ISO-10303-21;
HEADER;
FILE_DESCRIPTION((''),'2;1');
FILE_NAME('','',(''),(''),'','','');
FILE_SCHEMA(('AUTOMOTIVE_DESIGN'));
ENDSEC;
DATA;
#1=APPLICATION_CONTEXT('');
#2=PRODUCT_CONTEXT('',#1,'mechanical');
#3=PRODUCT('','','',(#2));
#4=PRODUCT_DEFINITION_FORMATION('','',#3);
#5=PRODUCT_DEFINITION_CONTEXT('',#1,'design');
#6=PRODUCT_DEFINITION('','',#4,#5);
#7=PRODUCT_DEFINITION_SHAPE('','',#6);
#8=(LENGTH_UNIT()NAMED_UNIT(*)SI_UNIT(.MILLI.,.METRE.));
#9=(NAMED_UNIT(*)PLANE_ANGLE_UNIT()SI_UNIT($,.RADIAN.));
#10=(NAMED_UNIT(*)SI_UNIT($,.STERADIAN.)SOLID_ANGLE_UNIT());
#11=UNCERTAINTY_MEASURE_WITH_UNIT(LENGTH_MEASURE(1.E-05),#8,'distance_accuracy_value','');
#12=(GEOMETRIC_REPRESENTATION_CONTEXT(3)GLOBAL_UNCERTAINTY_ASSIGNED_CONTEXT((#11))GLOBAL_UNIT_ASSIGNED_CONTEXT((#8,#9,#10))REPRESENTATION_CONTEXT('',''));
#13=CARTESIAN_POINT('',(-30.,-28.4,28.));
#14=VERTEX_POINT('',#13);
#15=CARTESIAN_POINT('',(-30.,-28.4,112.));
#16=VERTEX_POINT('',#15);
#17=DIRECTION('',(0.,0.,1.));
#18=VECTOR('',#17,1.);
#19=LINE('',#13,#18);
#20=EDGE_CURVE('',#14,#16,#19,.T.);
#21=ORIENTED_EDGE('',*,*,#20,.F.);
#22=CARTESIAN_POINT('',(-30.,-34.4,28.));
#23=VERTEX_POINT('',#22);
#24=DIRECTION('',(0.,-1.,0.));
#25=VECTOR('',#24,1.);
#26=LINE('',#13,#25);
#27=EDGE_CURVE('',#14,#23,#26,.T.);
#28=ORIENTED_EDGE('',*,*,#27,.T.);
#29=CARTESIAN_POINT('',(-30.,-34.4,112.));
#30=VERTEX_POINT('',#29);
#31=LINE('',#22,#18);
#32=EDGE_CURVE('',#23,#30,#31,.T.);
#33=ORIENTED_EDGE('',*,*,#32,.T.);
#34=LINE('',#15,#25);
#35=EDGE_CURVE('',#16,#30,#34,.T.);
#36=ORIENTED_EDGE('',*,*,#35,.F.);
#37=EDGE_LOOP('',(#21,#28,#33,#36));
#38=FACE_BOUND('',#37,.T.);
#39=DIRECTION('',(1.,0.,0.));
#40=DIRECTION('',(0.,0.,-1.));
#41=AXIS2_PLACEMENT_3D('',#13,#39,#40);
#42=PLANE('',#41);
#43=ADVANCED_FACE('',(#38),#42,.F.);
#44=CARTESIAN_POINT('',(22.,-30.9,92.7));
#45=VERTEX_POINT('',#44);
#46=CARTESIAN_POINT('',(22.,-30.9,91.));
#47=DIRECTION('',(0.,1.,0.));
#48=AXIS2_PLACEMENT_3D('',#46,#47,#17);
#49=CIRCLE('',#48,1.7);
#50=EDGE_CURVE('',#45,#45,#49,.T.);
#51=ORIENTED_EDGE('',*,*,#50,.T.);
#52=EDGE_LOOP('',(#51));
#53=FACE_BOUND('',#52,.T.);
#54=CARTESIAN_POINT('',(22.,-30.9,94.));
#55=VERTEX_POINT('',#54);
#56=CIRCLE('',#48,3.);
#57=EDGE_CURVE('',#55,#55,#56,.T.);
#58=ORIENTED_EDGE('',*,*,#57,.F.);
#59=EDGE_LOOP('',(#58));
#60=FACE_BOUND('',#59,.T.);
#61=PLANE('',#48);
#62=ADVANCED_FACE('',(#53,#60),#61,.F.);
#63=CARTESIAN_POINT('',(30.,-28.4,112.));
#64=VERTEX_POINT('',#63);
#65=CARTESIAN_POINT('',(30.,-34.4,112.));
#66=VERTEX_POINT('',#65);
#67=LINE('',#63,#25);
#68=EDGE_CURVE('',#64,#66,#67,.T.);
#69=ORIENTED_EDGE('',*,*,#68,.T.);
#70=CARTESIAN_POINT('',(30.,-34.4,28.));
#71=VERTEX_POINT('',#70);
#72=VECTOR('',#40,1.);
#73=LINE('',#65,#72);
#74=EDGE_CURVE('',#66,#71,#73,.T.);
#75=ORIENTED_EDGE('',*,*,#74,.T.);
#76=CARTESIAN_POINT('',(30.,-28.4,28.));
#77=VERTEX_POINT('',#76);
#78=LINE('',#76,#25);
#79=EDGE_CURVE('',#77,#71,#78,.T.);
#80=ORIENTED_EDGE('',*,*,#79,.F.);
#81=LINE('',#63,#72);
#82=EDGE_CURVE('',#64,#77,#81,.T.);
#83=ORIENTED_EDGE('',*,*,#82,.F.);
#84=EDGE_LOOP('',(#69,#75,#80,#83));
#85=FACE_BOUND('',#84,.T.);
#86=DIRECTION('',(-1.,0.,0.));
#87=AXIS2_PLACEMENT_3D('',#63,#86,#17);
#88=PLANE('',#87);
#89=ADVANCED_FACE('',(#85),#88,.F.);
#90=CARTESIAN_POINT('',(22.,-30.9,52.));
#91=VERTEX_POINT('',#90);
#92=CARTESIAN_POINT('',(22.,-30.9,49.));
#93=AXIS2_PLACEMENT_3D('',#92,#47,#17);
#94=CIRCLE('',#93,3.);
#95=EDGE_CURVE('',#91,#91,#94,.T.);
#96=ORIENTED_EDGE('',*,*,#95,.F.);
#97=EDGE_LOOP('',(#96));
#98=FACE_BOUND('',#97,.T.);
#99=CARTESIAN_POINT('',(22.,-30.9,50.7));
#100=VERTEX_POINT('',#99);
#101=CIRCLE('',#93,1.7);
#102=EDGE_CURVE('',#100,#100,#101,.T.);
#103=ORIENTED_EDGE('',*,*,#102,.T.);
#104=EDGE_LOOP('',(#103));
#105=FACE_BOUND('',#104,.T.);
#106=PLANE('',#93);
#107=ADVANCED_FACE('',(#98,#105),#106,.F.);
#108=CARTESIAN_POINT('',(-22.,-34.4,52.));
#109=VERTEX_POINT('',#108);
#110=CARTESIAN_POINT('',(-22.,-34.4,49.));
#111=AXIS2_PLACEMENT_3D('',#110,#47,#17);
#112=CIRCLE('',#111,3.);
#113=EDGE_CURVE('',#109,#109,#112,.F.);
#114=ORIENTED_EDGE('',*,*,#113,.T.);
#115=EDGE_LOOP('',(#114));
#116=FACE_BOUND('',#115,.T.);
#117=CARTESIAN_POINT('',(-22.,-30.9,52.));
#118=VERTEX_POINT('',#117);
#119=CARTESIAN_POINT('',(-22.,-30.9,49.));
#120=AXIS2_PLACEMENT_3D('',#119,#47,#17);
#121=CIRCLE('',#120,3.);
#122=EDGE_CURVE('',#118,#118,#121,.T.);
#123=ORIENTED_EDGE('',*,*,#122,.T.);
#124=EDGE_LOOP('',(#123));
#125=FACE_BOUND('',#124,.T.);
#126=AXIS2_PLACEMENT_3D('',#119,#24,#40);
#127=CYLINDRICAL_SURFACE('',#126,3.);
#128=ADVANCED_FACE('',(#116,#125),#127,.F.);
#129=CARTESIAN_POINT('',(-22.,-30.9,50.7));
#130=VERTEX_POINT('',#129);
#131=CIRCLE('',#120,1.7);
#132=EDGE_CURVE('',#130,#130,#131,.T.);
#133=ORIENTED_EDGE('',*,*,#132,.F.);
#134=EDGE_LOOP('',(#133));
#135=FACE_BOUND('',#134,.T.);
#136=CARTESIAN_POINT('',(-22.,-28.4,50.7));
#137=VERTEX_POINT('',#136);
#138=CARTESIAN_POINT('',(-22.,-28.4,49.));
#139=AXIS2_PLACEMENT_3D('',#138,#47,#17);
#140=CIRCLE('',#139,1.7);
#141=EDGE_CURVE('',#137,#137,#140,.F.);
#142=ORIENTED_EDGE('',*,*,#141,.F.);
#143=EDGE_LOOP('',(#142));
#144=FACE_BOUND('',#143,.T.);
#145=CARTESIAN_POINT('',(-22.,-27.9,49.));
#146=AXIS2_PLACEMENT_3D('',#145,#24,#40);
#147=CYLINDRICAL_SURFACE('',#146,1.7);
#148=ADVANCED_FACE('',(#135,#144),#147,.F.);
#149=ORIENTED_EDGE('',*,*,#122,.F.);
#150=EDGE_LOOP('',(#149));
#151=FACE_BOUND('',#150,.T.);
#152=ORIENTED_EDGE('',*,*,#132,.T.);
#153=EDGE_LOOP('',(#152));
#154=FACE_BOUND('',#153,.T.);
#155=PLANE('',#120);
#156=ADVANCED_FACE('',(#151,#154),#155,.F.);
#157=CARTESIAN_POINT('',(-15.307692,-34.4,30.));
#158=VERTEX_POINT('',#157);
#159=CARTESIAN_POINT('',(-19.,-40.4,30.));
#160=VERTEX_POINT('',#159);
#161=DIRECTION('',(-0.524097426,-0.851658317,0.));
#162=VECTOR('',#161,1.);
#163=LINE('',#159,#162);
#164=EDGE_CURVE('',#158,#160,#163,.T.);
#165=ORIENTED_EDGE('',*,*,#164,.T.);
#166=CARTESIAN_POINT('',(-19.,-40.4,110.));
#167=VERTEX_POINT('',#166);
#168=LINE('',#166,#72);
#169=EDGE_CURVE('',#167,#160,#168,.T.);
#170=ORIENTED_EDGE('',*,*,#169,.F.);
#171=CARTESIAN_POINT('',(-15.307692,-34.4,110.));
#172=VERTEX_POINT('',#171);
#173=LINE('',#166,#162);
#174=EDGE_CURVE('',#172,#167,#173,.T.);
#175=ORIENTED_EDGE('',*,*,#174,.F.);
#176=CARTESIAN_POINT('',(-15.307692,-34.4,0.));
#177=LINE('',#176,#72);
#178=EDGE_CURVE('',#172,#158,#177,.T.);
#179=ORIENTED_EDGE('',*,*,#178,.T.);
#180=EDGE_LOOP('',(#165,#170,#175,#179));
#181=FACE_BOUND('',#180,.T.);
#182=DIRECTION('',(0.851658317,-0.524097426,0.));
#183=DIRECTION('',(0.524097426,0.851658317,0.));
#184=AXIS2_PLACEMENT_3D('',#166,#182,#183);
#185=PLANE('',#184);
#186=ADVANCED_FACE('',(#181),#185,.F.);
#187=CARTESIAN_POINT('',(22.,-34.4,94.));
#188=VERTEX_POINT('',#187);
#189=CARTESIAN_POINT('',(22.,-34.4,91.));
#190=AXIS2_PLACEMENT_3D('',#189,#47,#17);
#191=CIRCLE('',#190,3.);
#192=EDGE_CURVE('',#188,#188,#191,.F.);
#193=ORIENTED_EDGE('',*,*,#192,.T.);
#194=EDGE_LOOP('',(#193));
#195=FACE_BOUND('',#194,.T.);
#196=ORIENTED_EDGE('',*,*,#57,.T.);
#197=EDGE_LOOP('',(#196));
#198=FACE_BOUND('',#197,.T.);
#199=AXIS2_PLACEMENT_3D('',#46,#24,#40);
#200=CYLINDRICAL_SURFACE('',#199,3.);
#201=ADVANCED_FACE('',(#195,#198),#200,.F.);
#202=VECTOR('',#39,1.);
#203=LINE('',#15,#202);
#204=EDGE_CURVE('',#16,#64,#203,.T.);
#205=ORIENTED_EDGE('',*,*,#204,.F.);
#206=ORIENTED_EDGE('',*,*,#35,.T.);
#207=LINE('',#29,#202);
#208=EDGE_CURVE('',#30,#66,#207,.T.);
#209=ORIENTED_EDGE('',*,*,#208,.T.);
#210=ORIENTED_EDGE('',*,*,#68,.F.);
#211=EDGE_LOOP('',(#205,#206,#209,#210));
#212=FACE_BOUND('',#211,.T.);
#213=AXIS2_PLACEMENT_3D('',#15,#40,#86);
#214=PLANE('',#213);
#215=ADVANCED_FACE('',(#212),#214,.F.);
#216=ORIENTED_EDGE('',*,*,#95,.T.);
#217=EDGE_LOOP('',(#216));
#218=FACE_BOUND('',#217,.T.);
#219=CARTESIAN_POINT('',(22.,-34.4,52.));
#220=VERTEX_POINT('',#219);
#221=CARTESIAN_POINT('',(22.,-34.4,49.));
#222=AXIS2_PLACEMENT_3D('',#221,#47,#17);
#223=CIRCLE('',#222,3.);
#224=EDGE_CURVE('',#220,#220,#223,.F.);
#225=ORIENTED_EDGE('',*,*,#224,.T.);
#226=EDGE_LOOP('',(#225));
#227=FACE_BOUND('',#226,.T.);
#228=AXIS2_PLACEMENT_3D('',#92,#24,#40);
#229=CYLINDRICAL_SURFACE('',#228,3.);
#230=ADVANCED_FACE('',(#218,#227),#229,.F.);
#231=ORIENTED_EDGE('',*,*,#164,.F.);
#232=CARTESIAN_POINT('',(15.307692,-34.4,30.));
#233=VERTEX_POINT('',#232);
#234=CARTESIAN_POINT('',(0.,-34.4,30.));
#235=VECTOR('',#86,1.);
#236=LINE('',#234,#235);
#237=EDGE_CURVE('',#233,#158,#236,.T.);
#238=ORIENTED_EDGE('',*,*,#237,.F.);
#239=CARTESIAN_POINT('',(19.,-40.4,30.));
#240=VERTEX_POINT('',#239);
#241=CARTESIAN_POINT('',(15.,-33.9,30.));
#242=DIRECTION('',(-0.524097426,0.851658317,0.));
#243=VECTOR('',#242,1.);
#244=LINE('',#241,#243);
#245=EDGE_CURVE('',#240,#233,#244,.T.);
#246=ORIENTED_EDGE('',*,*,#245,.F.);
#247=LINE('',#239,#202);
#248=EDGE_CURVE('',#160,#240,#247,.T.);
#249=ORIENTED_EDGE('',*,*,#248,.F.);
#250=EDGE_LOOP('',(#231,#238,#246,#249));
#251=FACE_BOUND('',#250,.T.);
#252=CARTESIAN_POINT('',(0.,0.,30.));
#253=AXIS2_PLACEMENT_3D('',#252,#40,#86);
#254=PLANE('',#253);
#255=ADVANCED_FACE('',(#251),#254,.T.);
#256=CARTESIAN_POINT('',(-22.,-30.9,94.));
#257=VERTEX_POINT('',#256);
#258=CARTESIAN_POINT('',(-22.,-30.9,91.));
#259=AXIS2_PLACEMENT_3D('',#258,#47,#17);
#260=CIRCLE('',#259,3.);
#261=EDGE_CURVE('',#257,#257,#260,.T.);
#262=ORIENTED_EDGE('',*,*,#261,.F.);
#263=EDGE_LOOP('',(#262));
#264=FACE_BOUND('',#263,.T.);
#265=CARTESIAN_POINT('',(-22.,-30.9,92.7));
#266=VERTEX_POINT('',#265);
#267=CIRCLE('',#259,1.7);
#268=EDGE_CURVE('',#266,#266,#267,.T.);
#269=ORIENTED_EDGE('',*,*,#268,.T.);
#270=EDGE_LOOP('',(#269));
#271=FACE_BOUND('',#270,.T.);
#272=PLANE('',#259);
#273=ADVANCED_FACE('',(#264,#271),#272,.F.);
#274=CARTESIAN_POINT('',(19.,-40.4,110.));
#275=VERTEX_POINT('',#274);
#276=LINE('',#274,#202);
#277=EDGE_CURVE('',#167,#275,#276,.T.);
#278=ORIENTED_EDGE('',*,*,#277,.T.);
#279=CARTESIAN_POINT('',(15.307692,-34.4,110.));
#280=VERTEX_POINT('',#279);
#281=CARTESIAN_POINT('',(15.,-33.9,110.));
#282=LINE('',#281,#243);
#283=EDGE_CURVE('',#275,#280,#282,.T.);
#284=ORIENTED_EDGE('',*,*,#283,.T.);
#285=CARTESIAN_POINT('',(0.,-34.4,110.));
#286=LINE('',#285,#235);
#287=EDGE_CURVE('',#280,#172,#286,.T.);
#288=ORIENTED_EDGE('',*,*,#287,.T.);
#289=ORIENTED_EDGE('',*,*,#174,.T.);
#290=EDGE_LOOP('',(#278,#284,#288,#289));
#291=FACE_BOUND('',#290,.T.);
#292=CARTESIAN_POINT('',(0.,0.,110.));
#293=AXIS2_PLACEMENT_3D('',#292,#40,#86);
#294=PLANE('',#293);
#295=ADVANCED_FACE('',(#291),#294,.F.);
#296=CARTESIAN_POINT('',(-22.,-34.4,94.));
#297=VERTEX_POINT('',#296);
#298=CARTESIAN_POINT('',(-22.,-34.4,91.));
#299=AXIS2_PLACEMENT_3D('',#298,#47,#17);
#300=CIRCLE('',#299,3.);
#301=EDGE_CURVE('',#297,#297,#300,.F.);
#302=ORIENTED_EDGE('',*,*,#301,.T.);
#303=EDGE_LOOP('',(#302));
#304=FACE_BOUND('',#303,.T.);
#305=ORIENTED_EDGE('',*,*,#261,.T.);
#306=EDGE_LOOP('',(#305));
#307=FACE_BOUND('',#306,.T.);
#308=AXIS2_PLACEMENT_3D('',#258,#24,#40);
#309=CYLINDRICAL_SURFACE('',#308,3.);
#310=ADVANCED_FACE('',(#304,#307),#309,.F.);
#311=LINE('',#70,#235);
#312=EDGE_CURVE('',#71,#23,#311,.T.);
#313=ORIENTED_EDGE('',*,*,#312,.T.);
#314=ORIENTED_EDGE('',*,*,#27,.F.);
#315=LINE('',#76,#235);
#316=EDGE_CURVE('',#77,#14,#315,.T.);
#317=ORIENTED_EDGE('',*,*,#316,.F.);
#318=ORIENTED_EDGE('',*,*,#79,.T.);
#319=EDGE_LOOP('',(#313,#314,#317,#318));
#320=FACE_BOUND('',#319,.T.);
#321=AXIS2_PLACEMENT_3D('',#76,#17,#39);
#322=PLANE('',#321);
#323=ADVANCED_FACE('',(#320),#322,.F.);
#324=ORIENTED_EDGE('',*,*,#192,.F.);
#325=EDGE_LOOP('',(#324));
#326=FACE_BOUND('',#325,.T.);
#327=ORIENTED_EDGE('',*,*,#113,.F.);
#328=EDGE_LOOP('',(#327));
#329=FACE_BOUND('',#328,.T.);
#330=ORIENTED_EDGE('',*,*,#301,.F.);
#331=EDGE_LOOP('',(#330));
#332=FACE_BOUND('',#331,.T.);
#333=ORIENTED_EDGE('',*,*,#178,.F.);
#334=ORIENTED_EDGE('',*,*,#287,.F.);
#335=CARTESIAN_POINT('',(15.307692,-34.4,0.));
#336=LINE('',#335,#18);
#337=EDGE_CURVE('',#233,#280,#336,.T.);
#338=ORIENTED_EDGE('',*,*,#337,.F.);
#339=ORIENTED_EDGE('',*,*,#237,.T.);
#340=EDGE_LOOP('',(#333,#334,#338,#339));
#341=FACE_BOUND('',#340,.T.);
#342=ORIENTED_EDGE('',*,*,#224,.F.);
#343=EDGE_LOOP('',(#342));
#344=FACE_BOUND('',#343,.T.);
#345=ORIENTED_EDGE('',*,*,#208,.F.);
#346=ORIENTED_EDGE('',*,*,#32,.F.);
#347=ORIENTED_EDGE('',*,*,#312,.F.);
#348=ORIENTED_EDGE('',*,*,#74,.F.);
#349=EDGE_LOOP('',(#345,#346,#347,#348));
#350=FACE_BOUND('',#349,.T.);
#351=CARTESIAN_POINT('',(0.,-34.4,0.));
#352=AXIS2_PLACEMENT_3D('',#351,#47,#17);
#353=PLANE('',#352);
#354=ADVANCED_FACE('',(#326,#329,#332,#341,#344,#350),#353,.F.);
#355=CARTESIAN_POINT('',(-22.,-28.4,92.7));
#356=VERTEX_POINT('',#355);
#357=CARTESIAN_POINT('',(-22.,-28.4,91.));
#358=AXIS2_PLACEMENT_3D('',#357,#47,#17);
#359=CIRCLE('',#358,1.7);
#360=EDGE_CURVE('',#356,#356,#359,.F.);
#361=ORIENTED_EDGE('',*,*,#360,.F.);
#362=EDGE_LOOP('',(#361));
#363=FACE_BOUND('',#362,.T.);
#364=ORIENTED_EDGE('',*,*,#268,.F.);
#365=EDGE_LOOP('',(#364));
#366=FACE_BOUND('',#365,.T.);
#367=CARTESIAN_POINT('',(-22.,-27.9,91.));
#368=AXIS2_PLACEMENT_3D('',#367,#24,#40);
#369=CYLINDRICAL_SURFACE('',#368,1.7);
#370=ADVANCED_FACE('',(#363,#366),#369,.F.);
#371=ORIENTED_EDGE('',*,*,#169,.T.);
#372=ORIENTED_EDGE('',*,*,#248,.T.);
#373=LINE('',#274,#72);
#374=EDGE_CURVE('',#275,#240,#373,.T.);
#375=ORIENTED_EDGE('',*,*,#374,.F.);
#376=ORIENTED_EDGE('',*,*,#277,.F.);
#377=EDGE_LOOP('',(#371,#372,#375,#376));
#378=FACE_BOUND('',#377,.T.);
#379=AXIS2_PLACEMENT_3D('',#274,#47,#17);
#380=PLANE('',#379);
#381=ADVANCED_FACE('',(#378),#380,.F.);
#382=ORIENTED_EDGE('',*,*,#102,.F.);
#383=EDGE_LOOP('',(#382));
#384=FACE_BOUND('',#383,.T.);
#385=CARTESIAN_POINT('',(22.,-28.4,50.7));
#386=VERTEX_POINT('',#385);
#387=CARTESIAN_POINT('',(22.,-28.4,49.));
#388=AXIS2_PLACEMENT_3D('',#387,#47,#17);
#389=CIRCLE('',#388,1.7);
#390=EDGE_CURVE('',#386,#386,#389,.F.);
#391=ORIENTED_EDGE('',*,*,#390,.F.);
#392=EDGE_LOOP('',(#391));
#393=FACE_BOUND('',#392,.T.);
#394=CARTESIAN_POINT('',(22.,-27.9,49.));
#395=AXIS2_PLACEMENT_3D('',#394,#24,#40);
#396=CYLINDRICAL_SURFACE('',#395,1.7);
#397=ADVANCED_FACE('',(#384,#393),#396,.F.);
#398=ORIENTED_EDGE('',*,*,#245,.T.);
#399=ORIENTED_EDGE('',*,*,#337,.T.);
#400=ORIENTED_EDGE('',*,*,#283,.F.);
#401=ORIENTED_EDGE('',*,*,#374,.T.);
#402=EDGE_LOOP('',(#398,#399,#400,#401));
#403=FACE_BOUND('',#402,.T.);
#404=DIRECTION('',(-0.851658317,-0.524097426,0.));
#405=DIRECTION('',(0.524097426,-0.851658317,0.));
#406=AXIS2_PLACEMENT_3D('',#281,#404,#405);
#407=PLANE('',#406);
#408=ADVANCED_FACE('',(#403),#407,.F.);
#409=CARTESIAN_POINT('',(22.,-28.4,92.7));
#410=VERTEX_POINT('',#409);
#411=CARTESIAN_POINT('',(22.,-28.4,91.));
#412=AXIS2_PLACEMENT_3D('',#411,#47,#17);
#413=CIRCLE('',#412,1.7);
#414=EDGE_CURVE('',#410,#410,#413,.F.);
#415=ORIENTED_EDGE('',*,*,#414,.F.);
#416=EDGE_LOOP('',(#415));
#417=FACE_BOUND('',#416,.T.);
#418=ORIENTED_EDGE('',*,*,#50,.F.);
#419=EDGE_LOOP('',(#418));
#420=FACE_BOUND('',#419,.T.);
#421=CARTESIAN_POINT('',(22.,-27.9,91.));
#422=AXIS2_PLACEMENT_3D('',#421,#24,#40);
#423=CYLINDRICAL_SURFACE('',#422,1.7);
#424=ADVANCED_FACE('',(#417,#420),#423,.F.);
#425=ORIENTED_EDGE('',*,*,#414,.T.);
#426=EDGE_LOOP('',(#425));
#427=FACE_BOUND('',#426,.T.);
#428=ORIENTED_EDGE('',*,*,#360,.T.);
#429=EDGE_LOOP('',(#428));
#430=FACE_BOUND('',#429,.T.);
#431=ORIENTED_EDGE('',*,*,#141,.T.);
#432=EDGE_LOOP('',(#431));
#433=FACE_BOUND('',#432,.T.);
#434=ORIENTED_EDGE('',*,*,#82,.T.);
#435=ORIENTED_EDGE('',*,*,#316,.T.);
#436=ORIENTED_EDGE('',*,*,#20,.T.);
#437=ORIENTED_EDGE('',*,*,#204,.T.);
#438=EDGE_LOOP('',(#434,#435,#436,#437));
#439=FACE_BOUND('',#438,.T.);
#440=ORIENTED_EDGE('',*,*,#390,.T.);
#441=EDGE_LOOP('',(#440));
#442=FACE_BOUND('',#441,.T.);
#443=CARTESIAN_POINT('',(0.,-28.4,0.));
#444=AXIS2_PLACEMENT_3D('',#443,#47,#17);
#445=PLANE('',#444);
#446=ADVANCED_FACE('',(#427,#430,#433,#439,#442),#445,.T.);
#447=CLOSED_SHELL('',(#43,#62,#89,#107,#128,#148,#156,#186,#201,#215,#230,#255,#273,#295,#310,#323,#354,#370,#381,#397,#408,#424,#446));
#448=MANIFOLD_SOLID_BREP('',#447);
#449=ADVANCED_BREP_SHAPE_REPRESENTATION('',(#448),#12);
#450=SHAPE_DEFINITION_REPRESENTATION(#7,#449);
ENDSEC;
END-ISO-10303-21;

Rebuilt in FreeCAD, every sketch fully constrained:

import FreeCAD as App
import Part
import Sketcher
from FreeCAD import Vector
Q = App.Units.Quantity


def add_polygon(sketch, points):
    """Adds a closed chain of lines whose ends are joined by coincident constraints."""
    first, n = sketch.GeometryCount, len(points)
    for a, b in zip(points, points[1:] + points[:1]):
        sketch.addGeometry(Part.LineSegment(App.Vector(*a, 0), App.Vector(*b, 0)), False)
    for i in range(n):
        sketch.addConstraint(Sketcher.Constraint("Coincident", first + i, 2, first + (i + 1) % n, 1))

doc = App.newDocument("Part")
body = doc.addObject("PartDesign::Body", "Body")

sketch1 = doc.addObject("Sketcher::SketchObject", "Sketch")
body.addObject(sketch1)
sketch1.AttachmentSupport = (doc.XZ_Plane, [""])
sketch1.MapMode = "FlatFace"
sketch1.AttachmentOffset = App.Placement(Vector(0, 0, 34.4), App.Rotation())
add_polygon(sketch1, [(-30, 28), (-30, 112), (30, 112), (30, 28)])
sketch1.addConstraint(Sketcher.Constraint("Vertical", 0))
sketch1.addConstraint(Sketcher.Constraint("Horizontal", 1))
sketch1.addConstraint(Sketcher.Constraint("Vertical", 2))
sketch1.addConstraint(Sketcher.Constraint("Horizontal", 3))
sketch1.addConstraint(Sketcher.Constraint("DistanceX", 1, 1, 1, 2, Q("60 mm")))
sketch1.addConstraint(Sketcher.Constraint("DistanceY", 0, 1, 0, 2, Q("84 mm")))
sketch1.addConstraint(Sketcher.Constraint("DistanceX", 0, 2, -1, 1, Q("30 mm")))
sketch1.addConstraint(Sketcher.Constraint("DistanceY", -1, 1, 0, 2, Q("112 mm")))
pad1 = doc.addObject("PartDesign::Pad", "Pad")
body.addObject(pad1)
pad1.Profile = sketch1
pad1.Length = 6
pad1.Reversed = True

sketch2 = doc.addObject("Sketcher::SketchObject", "Sketch001")
body.addObject(sketch2)
sketch2.AttachmentSupport = (doc.XY_Plane, [""])
sketch2.MapMode = "FlatFace"
sketch2.AttachmentOffset = App.Placement(Vector(0, 0, 30), App.Rotation())
add_polygon(sketch2, [(15, -33.9), (-15, -33.9), (-19, -40.4), (19, -40.4)])
sketch2.addConstraint(Sketcher.Constraint("Horizontal", 0))
sketch2.addConstraint(Sketcher.Constraint("Horizontal", 2))
sketch2.addConstraint(Sketcher.Constraint("Equal", 1, 3))
sketch2.addConstraint(Sketcher.Constraint("DistanceX", 0, 2, 0, 1, Q("30 mm")))
sketch2.addConstraint(Sketcher.Constraint("DistanceX", 2, 1, 2, 2, Q("38 mm")))
sketch2.addConstraint(Sketcher.Constraint("DistanceX", 0, 2, -1, 1, Q("15 mm")))
sketch2.addConstraint(Sketcher.Constraint("DistanceY", 0, 2, -1, 1, Q("33.9 mm")))
sketch2.addConstraint(Sketcher.Constraint("DistanceY", 1, 2, -1, 1, Q("40.4 mm")))
pad2 = doc.addObject("PartDesign::Pad", "Pad001")
body.addObject(pad2)
pad2.Profile = sketch2
pad2.Length = 80

sketch3 = doc.addObject("Sketcher::SketchObject", "Sketch002")
body.addObject(sketch3)
sketch3.AttachmentSupport = (doc.XZ_Plane, [""])
sketch3.MapMode = "FlatFace"
sketch3.AttachmentOffset = App.Placement(Vector(0, 0, 34.9), App.Rotation())
sketch3.addGeometry(Part.Circle(Vector(-22, 91, 0), Vector(0, 0, 1), 1.7), False)
sketch3.addGeometry(Part.Circle(Vector(-22, 49, 0), Vector(0, 0, 1), 1.7), False)
sketch3.addGeometry(Part.Circle(Vector(22, 91, 0), Vector(0, 0, 1), 1.7), False)
sketch3.addGeometry(Part.Circle(Vector(22, 49, 0), Vector(0, 0, 1), 1.7), False)
sketch3.addConstraint(Sketcher.Constraint("Equal", 0, 1))
sketch3.addConstraint(Sketcher.Constraint("Equal", 1, 2))
sketch3.addConstraint(Sketcher.Constraint("Equal", 2, 3))
sketch3.addConstraint(Sketcher.Constraint("Symmetric", 0, 3, 2, 3, -2))
sketch3.addConstraint(Sketcher.Constraint("Symmetric", 1, 3, 3, 3, -2))
sketch3.addConstraint(Sketcher.Constraint("Vertical", 0, 3, 1, 3))
sketch3.addConstraint(Sketcher.Constraint("Diameter", 0, Q("3.4 mm")))
sketch3.addConstraint(Sketcher.Constraint("DistanceX", 0, 3, -1, 1, Q("22 mm")))
sketch3.addConstraint(Sketcher.Constraint("DistanceY", -1, 1, 0, 3, Q("91 mm")))
sketch3.addConstraint(Sketcher.Constraint("DistanceY", -1, 1, 1, 3, Q("49 mm")))
pocket1 = doc.addObject("PartDesign::Pocket", "Pocket")
body.addObject(pocket1)
pocket1.Profile = sketch3
pocket1.Length = 7

sketch4 = doc.addObject("Sketcher::SketchObject", "Sketch003")
body.addObject(sketch4)
sketch4.AttachmentSupport = (doc.XZ_Plane, [""])
sketch4.MapMode = "FlatFace"
sketch4.AttachmentOffset = App.Placement(Vector(0, 0, 34.9), App.Rotation())
sketch4.addGeometry(Part.Circle(Vector(-22, 91, 0), Vector(0, 0, 1), 3), False)
sketch4.addGeometry(Part.Circle(Vector(-22, 49, 0), Vector(0, 0, 1), 3), False)
sketch4.addGeometry(Part.Circle(Vector(22, 91, 0), Vector(0, 0, 1), 3), False)
sketch4.addGeometry(Part.Circle(Vector(22, 49, 0), Vector(0, 0, 1), 3), False)
sketch4.addConstraint(Sketcher.Constraint("Equal", 0, 1))
sketch4.addConstraint(Sketcher.Constraint("Equal", 1, 2))
sketch4.addConstraint(Sketcher.Constraint("Equal", 2, 3))
sketch4.addConstraint(Sketcher.Constraint("Symmetric", 0, 3, 2, 3, -2))
sketch4.addConstraint(Sketcher.Constraint("Symmetric", 1, 3, 3, 3, -2))
sketch4.addConstraint(Sketcher.Constraint("Vertical", 0, 3, 1, 3))
sketch4.addConstraint(Sketcher.Constraint("Diameter", 0, Q("6 mm")))
sketch4.addConstraint(Sketcher.Constraint("DistanceX", 0, 3, -1, 1, Q("22 mm")))
sketch4.addConstraint(Sketcher.Constraint("DistanceY", -1, 1, 0, 3, Q("91 mm")))
sketch4.addConstraint(Sketcher.Constraint("DistanceY", -1, 1, 1, 3, Q("49 mm")))
pocket2 = doc.addObject("PartDesign::Pocket", "Pocket001")
body.addObject(pocket2)
pocket2.Profile = sketch4
pocket2.Length = 4

doc.recompute()
